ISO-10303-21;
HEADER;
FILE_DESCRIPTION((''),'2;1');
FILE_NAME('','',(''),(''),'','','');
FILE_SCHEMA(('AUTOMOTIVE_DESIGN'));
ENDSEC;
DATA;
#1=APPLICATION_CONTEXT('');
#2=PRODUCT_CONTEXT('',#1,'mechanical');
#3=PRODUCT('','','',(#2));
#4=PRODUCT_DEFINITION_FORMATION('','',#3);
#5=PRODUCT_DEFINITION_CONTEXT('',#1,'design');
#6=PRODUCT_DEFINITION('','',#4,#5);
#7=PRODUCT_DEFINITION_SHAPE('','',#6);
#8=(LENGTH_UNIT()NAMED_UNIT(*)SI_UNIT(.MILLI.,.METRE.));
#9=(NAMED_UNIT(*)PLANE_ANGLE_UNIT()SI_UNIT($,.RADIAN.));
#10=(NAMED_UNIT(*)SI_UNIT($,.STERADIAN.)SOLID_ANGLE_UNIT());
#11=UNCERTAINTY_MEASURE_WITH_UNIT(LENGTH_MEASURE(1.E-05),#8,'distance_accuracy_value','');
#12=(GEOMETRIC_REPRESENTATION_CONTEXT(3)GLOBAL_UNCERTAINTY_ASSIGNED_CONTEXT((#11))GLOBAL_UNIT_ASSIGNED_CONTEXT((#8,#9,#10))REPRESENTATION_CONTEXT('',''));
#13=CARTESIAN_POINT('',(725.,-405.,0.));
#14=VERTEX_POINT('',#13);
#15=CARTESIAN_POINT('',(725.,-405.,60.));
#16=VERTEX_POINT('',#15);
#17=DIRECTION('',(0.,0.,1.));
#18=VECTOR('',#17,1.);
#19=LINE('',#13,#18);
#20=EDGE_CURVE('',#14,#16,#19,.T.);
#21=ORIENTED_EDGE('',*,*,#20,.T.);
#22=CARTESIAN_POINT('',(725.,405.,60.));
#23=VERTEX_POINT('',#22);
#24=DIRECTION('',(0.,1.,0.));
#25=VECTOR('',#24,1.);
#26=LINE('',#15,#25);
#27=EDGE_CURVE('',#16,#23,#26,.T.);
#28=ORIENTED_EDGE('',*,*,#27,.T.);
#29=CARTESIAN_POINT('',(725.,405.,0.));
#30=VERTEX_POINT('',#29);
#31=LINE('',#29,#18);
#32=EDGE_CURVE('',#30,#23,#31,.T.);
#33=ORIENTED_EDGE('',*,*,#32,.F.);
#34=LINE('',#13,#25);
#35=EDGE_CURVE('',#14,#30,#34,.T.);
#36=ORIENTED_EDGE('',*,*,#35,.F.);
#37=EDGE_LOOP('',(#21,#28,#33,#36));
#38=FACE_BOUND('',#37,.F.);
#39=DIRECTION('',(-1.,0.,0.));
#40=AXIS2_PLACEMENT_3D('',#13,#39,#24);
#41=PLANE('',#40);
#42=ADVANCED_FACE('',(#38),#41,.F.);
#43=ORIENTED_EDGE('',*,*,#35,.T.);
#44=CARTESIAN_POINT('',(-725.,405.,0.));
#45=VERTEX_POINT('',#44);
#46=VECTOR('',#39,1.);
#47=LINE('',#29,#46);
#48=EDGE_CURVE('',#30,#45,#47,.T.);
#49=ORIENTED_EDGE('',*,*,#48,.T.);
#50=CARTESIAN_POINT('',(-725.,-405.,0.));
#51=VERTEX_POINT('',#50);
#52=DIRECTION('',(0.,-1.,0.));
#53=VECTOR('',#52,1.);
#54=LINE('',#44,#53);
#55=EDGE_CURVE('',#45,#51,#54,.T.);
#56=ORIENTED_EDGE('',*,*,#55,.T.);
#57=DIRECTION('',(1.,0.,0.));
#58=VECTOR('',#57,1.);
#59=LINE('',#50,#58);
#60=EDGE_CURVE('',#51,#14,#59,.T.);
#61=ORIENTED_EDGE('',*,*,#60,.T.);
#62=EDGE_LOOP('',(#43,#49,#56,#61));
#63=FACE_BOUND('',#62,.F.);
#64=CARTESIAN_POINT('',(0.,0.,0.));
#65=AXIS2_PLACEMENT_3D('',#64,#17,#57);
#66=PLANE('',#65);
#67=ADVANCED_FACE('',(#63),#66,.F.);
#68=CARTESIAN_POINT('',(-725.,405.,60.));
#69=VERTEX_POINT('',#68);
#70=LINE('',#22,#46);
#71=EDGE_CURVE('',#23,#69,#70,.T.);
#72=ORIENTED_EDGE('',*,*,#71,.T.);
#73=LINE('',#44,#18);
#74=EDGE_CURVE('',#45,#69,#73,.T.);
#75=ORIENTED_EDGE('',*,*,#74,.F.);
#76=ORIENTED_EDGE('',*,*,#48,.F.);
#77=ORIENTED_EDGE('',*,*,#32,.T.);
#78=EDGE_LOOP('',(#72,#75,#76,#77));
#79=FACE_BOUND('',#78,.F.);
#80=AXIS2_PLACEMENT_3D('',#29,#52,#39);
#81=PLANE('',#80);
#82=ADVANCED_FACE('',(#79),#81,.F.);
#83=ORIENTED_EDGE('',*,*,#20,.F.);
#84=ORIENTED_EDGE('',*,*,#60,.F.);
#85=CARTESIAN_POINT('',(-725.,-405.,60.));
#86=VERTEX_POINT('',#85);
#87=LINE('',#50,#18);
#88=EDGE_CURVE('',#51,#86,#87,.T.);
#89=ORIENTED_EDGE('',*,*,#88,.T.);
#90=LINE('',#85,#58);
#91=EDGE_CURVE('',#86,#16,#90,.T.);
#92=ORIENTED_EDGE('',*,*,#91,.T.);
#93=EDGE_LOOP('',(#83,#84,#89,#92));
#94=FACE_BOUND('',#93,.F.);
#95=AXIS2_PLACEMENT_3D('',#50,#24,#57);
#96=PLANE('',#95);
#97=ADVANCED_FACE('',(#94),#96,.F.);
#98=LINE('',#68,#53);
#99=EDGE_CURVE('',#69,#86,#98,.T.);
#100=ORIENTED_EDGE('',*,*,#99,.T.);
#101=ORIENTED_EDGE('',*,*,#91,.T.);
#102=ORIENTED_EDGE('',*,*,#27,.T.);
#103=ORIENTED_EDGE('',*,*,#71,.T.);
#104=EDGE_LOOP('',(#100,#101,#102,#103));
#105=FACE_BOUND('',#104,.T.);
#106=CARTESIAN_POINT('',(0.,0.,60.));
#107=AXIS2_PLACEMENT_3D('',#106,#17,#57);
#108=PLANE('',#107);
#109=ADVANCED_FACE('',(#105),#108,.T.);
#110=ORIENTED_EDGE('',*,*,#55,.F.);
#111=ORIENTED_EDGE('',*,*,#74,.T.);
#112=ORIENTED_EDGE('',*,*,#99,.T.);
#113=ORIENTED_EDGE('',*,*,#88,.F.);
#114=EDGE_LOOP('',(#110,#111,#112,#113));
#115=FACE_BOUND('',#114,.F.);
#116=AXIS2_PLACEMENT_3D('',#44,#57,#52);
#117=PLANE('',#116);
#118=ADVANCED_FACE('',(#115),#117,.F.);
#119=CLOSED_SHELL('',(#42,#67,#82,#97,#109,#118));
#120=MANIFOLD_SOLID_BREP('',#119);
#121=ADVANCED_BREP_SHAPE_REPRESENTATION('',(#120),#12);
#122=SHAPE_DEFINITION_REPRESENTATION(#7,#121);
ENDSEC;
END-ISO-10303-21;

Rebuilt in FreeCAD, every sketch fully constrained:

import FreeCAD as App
import Part
import Sketcher

V = App.Vector


def add_polygon(sketch, points):
    """Adds a closed chain of lines whose ends are joined by coincident constraints."""
    first, n = sketch.GeometryCount, len(points)
    for a, b in zip(points, points[1:] + points[:1]):
        sketch.addGeometry(Part.LineSegment(App.Vector(*a, 0), App.Vector(*b, 0)), False)
    for i in range(n):
        sketch.addConstraint(Sketcher.Constraint("Coincident", first + i, 2, first + (i + 1) % n, 1))

doc = App.newDocument("Part")
body = doc.addObject("PartDesign::Body", "Body")

sketch1 = doc.addObject("Sketcher::SketchObject", "Sketch")
body.addObject(sketch1)
sketch1.AttachmentSupport = (doc.XY_Plane, [""])
sketch1.MapMode = "FlatFace"
add_polygon(sketch1, [(-725, 405), (-725, -405), (725, -405), (725, 405)])
sketch1.addConstraint(Sketcher.Constraint("Vertical", 0))
sketch1.addConstraint(Sketcher.Constraint("Horizontal", 1))
sketch1.addConstraint(Sketcher.Constraint("Vertical", 2))
sketch1.addConstraint(Sketcher.Constraint("Horizontal", 3))
sketch1.addConstraint(Sketcher.Constraint("Symmetric", 0, 2, 2, 2, -1, 1))
sketch1.addConstraint(Sketcher.Constraint("DistanceX", 1, 1, 1, 2, 1450.0))
sketch1.addConstraint(Sketcher.Constraint("DistanceY", 0, 2, 0, 1, 810.0))
pad1 = doc.addObject("PartDesign::Pad", "Pad")
body.addObject(pad1)
pad1.Profile = sketch1
pad1.Length = 60

doc.recompute()
